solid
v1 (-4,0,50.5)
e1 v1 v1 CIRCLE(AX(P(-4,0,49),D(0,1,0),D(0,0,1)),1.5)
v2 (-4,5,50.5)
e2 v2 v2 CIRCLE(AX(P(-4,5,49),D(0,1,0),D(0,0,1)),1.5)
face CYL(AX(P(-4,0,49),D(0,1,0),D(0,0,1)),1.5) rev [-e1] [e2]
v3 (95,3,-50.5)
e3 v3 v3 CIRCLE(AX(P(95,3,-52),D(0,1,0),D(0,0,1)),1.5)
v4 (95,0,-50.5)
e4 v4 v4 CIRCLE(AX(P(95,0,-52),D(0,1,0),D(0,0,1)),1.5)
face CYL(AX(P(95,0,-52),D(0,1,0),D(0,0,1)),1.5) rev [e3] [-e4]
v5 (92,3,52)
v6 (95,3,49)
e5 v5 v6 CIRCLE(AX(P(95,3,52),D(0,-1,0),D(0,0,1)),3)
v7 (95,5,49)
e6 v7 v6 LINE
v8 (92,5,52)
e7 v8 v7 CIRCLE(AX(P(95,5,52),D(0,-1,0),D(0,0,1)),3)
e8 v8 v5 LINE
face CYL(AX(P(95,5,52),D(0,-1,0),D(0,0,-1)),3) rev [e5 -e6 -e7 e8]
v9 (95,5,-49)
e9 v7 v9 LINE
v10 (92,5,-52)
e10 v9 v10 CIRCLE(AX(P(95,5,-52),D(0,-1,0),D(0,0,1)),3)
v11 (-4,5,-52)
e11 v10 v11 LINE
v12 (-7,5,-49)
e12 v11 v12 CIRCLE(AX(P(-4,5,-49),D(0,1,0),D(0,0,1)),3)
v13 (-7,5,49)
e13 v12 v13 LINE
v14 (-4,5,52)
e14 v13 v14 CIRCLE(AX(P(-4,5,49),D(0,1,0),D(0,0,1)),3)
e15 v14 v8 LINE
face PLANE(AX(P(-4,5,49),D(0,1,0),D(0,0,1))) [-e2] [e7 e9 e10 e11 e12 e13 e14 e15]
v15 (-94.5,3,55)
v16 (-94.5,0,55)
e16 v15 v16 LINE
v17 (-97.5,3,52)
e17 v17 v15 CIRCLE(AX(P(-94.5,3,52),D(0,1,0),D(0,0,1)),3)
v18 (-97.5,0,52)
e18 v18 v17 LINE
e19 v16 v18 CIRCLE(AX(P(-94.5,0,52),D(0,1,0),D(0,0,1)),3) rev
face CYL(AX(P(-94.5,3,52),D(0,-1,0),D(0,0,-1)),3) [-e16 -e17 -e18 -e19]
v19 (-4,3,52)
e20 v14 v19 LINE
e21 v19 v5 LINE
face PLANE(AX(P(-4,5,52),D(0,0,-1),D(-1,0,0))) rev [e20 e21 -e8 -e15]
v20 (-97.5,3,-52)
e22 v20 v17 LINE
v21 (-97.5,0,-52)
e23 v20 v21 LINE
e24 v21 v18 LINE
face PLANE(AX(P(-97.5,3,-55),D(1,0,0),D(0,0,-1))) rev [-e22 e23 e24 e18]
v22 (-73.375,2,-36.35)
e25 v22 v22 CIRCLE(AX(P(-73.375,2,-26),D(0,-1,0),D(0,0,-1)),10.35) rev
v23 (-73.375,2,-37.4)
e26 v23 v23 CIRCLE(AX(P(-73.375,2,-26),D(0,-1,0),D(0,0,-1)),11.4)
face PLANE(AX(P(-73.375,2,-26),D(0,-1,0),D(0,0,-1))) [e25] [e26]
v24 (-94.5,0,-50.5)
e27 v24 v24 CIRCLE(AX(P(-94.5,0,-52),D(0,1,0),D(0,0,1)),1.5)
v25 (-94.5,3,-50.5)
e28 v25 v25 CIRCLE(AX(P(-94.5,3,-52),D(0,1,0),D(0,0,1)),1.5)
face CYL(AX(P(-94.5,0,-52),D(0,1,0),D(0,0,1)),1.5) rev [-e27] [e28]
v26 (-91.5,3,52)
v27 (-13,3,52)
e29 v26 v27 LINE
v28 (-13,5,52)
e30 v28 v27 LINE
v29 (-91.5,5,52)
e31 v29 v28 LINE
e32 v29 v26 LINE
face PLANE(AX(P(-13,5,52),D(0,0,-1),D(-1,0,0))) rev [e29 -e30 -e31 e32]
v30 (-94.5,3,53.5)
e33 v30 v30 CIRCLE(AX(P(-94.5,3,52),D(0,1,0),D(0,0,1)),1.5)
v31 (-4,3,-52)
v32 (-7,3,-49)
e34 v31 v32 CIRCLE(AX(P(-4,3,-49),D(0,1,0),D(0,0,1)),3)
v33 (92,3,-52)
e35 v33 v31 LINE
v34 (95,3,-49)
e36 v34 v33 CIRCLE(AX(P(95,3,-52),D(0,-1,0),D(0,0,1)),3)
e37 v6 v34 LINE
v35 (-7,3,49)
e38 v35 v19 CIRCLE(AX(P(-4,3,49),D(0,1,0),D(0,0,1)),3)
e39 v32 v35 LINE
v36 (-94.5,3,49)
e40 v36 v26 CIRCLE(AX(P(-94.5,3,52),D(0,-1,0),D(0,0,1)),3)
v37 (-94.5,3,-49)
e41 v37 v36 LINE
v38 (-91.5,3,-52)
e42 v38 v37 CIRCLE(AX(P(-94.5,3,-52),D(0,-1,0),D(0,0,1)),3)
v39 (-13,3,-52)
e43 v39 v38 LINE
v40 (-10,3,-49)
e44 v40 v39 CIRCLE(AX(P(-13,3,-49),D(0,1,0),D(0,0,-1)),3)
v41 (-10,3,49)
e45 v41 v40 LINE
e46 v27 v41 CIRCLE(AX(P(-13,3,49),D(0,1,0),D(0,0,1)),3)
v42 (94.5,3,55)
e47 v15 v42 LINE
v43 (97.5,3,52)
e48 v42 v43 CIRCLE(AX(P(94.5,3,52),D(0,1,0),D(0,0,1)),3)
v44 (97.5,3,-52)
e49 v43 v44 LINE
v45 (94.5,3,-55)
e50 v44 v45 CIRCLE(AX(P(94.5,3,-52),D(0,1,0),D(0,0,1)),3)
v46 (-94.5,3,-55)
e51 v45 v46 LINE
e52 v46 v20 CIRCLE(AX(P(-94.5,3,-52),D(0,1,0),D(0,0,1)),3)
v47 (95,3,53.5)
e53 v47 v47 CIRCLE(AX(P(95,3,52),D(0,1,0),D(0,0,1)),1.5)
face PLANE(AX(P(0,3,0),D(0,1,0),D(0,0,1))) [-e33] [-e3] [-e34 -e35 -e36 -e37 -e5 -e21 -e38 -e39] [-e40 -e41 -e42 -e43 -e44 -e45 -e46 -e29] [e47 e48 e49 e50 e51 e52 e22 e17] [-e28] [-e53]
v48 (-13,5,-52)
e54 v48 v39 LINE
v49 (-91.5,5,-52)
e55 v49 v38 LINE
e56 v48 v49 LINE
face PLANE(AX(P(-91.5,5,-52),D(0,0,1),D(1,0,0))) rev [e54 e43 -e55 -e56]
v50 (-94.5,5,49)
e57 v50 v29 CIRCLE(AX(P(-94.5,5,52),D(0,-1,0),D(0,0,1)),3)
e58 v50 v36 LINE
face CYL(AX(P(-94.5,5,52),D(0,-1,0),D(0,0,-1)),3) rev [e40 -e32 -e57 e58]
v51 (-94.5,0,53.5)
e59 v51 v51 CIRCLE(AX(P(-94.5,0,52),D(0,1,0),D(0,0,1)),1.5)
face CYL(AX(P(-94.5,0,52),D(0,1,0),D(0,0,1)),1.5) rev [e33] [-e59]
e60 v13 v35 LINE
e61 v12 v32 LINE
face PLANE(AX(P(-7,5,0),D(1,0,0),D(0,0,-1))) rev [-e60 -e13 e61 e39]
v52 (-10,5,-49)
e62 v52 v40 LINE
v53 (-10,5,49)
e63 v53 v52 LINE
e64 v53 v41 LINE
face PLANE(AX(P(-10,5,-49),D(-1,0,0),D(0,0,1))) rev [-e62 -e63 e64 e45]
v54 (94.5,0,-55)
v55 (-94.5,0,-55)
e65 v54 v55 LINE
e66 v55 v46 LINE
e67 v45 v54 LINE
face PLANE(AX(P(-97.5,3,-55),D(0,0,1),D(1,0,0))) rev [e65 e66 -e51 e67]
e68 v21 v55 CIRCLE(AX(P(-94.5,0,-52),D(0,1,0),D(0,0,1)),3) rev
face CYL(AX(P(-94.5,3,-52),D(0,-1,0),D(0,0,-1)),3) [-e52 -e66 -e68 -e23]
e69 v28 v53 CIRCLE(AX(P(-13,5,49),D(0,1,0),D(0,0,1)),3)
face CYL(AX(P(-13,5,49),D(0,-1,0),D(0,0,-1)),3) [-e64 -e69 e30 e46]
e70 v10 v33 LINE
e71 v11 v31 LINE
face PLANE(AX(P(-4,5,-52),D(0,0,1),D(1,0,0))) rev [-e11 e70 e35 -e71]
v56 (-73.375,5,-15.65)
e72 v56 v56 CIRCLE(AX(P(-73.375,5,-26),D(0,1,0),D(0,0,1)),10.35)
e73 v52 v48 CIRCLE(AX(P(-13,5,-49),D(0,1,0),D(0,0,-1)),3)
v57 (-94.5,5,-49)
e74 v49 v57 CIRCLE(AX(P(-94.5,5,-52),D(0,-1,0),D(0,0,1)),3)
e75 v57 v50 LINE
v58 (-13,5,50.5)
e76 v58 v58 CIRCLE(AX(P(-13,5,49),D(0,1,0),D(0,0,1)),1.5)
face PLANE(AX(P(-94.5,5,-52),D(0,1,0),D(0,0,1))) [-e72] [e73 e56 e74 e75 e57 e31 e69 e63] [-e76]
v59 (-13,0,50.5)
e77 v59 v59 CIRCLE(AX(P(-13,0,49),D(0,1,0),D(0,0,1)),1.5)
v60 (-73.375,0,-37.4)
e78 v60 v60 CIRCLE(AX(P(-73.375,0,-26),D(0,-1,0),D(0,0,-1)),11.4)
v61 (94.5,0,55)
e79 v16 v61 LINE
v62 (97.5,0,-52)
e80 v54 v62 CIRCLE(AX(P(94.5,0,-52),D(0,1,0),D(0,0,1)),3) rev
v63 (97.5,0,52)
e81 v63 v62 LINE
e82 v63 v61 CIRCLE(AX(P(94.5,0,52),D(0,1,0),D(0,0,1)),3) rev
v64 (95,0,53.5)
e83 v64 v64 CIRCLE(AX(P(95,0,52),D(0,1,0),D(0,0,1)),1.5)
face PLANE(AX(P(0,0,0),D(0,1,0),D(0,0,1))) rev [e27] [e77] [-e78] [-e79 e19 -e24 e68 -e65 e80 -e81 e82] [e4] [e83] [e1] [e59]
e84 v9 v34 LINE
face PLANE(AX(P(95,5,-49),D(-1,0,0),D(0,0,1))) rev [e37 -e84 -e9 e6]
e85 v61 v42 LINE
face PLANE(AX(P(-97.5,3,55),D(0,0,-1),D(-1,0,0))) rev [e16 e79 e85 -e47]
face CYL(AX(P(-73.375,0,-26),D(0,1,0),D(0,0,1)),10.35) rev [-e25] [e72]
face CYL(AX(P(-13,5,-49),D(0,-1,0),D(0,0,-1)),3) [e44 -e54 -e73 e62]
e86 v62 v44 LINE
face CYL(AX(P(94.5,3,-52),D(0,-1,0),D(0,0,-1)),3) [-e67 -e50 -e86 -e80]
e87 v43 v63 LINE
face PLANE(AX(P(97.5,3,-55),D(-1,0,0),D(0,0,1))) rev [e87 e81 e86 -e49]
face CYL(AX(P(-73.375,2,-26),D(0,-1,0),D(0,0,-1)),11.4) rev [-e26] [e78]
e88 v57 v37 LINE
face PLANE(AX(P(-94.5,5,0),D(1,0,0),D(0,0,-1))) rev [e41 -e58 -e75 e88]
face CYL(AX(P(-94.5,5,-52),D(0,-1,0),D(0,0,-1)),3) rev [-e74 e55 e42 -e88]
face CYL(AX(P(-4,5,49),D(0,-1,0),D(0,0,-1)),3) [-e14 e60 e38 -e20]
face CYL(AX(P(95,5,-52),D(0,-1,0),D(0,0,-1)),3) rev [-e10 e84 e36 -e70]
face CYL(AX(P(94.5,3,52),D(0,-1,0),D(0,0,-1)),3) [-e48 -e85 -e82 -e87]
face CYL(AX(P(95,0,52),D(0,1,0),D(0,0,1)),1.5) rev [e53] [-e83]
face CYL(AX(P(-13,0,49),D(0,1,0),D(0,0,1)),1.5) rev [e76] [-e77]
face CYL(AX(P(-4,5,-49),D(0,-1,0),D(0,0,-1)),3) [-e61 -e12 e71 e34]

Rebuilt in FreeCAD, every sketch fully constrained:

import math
import FreeCAD as App
import Part
import Sketcher

V = App.Vector
Q = App.Units.Quantity


def edges_at(feature, points):
    """Names of the edges that pass closest to the given points."""
    edges = feature.Shape.Edges
    near = lambda p: min(range(len(edges)), key=lambda i: edges[i].distToShape(Part.Vertex(*p))[0])
    return sorted({f"Edge{near(p) + 1}" for p in points})


def add_polygon(sketch, points):
    """Adds a closed chain of lines whose ends are joined by coincident constraints."""
    first, n = sketch.GeometryCount, len(points)
    for a, b in zip(points, points[1:] + points[:1]):
        sketch.addGeometry(Part.LineSegment(App.Vector(*a, 0), App.Vector(*b, 0)), False)
    for i in range(n):
        sketch.addConstraint(Sketcher.Constraint("Coincident", first + i, 2, first + (i + 1) % n, 1))

doc = App.newDocument("Part")
body = doc.addObject("PartDesign::Body", "Body")

# Sketch on XZ plane
sketch1 = doc.addObject("Sketcher::SketchObject", "Sketch")
body.addObject(sketch1)
sketch1.AttachmentSupport = (doc.XZ_Plane, [""])
sketch1.MapMode = "FlatFace"
add_polygon(sketch1, [(-98, -55), (-98, 55), (98, 55), (98, -55)])  # lines 0-3
sketch1.addConstraint(Sketcher.Constraint("Vertical", 0))
sketch1.addConstraint(Sketcher.Constraint("Horizontal", 1))
sketch1.addConstraint(Sketcher.Constraint("Vertical", 2))
sketch1.addConstraint(Sketcher.Constraint("Horizontal", 3))
sketch1.addConstraint(Sketcher.Constraint("Symmetric", 0, 2, 2, 2, -1, 1))
sketch1.addConstraint(Sketcher.Constraint("DistanceX", 1, 1, 1, 2, Q("195 mm")))
sketch1.addConstraint(Sketcher.Constraint("DistanceY", 0, 1, 0, 2, Q("110 mm")))
pad1 = doc.addObject("PartDesign::Pad", "Pad")
body.addObject(pad1)
pad1.Profile = sketch1
pad1.Length = 3
pad1.Reversed = True

# Sketch on XZ plane
sketch2 = doc.addObject("Sketcher::SketchObject", "Sketch001")
body.addObject(sketch2)
sketch2.AttachmentSupport = (doc.XZ_Plane, [""])
sketch2.MapMode = "FlatFace"
sketch2.AttachmentOffset = App.Placement(V(0, 0, -3), App.Rotation())
sketch2.addGeometry(Part.ArcOfCircle(Part.Circle(V(-94.5, -52, 0), V(0, 0, 1), 3), math.radians(0), math.radians(90)), False)
sketch2.addGeometry(Part.LineSegment(V(-94.5, -49, 0), V(-94.5, 49, 0)), False)
sketch2.addGeometry(Part.ArcOfCircle(Part.Circle(V(-94.5, 52, 0), V(0, 0, 1), 3), math.radians(-90), math.radians(0)), False)
sketch2.addGeometry(Part.LineSegment(V(-91.5, 52, 0), V(-13, 52, 0)), False)
sketch2.addGeometry(Part.ArcOfCircle(Part.Circle(V(-13, 49, 0), V(0, 0, 1), 3), math.radians(0), math.radians(90)), False)
sketch2.addGeometry(Part.LineSegment(V(-10, 49, 0), V(-10, -49, 0)), False)
sketch2.addGeometry(Part.ArcOfCircle(Part.Circle(V(-13, -49, 0), V(0, 0, 1), 3), math.radians(-90), math.radians(0)), False)
sketch2.addGeometry(Part.LineSegment(V(-13, -52, 0), V(-91.5, -52, 0)), False)
sketch2.addGeometry(Part.ArcOfCircle(Part.Circle(V(-4, -49, 0), V(0, 0, 1), 3), math.radians(180), math.radians(270)), False)
sketch2.addGeometry(Part.LineSegment(V(-7, -49, 0), V(-7, 49, 0)), False)
sketch2.addGeometry(Part.ArcOfCircle(Part.Circle(V(-4, 49, 0), V(0, 0, 1), 3), math.radians(90), math.radians(180)), False)
sketch2.addGeometry(Part.LineSegment(V(-4, 52, 0), V(92, 52, 0)), False)
sketch2.addGeometry(Part.ArcOfCircle(Part.Circle(V(95, 52, 0), V(0, 0, 1), 3), math.radians(180), math.radians(270)), False)
sketch2.addGeometry(Part.LineSegment(V(95, 49, 0), V(95, -49, 0)), False)
sketch2.addGeometry(Part.ArcOfCircle(Part.Circle(V(95, -52, 0), V(0, 0, 1), 3), math.radians(90), math.radians(180)), False)
sketch2.addGeometry(Part.LineSegment(V(92, -52, 0), V(-4, -52, 0)), False)
sketch2.addConstraint(Sketcher.Constraint("Coincident", 0, 2, 1, 1))
sketch2.addConstraint(Sketcher.Constraint("Coincident", 1, 2, 2, 1))
sketch2.addConstraint(Sketcher.Constraint("Coincident", 2, 2, 3, 1))
sketch2.addConstraint(Sketcher.Constraint("Tangent", 3, 2, 4, 2))
sketch2.addConstraint(Sketcher.Constraint("Tangent", 4, 1, 5, 1))
sketch2.addConstraint(Sketcher.Constraint("Tangent", 5, 2, 6, 2))
sketch2.addConstraint(Sketcher.Constraint("Tangent", 6, 1, 7, 1))
sketch2.addConstraint(Sketcher.Constraint("Coincident", 7, 2, 0, 1))
sketch2.addConstraint(Sketcher.Constraint("Tangent", 8, 1, 9, 1))
sketch2.addConstraint(Sketcher.Constraint("Tangent", 9, 2, 10, 2))
sketch2.addConstraint(Sketcher.Constraint("Tangent", 10, 1, 11, 1))
sketch2.addConstraint(Sketcher.Constraint("Coincident", 11, 2, 12, 1))
sketch2.addConstraint(Sketcher.Constraint("Coincident", 12, 2, 13, 1))
sketch2.addConstraint(Sketcher.Constraint("Coincident", 13, 2, 14, 1))
sketch2.addConstraint(Sketcher.Constraint("Coincident", 14, 2, 15, 1))
sketch2.addConstraint(Sketcher.Constraint("Tangent", 15, 2, 8, 2))
sketch2.addConstraint(Sketcher.Constraint("Vertical", 1))
sketch2.addConstraint(Sketcher.Constraint("Horizontal", 3))
sketch2.addConstraint(Sketcher.Constraint("Vertical", 5))
sketch2.addConstraint(Sketcher.Constraint("Horizontal", 7))
sketch2.addConstraint(Sketcher.Constraint("Vertical", 9))
sketch2.addConstraint(Sketcher.Constraint("Horizontal", 11))
sketch2.addConstraint(Sketcher.Constraint("Vertical", 13))
sketch2.addConstraint(Sketcher.Constraint("Horizontal", 15))
sketch2.addConstraint(Sketcher.Constraint("Equal", 0, 2))
sketch2.addConstraint(Sketcher.Constraint("Equal", 2, 4))
sketch2.addConstraint(Sketcher.Constraint("Equal", 4, 6))
sketch2.addConstraint(Sketcher.Constraint("Equal", 6, 8))
sketch2.addConstraint(Sketcher.Constraint("Equal", 8, 10))
sketch2.addConstraint(Sketcher.Constraint("Equal", 10, 12))
sketch2.addConstraint(Sketcher.Constraint("Equal", 12, 14))
sketch2.addConstraint(Sketcher.Constraint("Symmetric", 0, 3, 2, 3, -1))
sketch2.addConstraint(Sketcher.Constraint("Symmetric", 12, 3, 14, 3, -1))
sketch2.addConstraint(Sketcher.Constraint("Horizontal", 6, 3, 8, 3))
sketch2.addConstraint(Sketcher.Constraint("Horizontal", 4, 3, 10, 3))
sketch2.addConstraint(Sketcher.Constraint("Horizontal", 2, 3, 12, 3))
sketch2.addConstraint(Sketcher.Constraint("Horizontal", 8, 3, 0, 2))
sketch2.addConstraint(Sketcher.Constraint("Horizontal", 10, 3, 1, 2))
sketch2.addConstraint(Sketcher.Constraint("Vertical", 2, 3, 0, 2))
sketch2.addConstraint(Sketcher.Constraint("Vertical", 14, 3, 12, 2))
sketch2.addConstraint(Sketcher.Constraint("Radius", 0, Q("3 mm")))
sketch2.addConstraint(Sketcher.Constraint("DistanceX", 11, 1, 11, 2, Q("96 mm")))
sketch2.addConstraint(Sketcher.Constraint("DistanceY", 1, 1, 1, 2, Q("98 mm")))
sketch2.addConstraint(Sketcher.Constraint("DistanceX", 3, 1, 3, 2, Q("78.5 mm")))
sketch2.addConstraint(Sketcher.Constraint("DistanceX", 4, 3, -1, 1, Q("13 mm")))
sketch2.addConstraint(Sketcher.Constraint("DistanceX", 8, 3, -1, 1, Q("4 mm")))
pad2 = doc.addObject("PartDesign::Pad", "Pad001")
body.addObject(pad2)
pad2.Profile = sketch2
pad2.Length = 2
pad2.Reversed = True

# Sketch on XZ plane
sketch3 = doc.addObject("Sketcher::SketchObject", "Sketch002")
body.addObject(sketch3)
sketch3.AttachmentSupport = (doc.XZ_Plane, [""])
sketch3.MapMode = "FlatFace"
sketch3.AttachmentOffset = App.Placement(V(0, 0, -3), App.Rotation())
sketch3.addGeometry(Part.Circle(V(-94.5, -52, 0), V(0, 0, 1), 1.5), False)
sketch3.addGeometry(Part.Circle(V(95, -52, 0), V(0, 0, 1), 1.5), False)
sketch3.addGeometry(Part.Circle(V(95, 52, 0), V(0, 0, 1), 1.5), False)
sketch3.addGeometry(Part.Circle(V(-94.5, 52, 0), V(0, 0, 1), 1.5), False)
sketch3.addConstraint(Sketcher.Constraint("Equal", 0, 1))
sketch3.addConstraint(Sketcher.Constraint("Equal", 1, 2))
sketch3.addConstraint(Sketcher.Constraint("Equal", 2, 3))
sketch3.addConstraint(Sketcher.Constraint("Symmetric", 1, 3, 2, 3, -1))
sketch3.addConstraint(Sketcher.Constraint("Symmetric", 0, 3, 3, 3, -1))
sketch3.addConstraint(Sketcher.Constraint("Horizontal", 0, 3, 1, 3))
sketch3.addConstraint(Sketcher.Constraint("Diameter", 0, Q("3 mm")))
sketch3.addConstraint(Sketcher.Constraint("DistanceY", 0, 3, -1, 1, Q("52 mm")))
sketch3.addConstraint(Sketcher.Constraint("DistanceX", -1, 1, 1, 3, Q("95 mm")))
sketch3.addConstraint(Sketcher.Constraint("DistanceX", 0, 3, -1, 1, Q("94.5 mm")))
pocket1 = doc.addObject("PartDesign::Pocket", "Pocket")
body.addObject(pocket1)
pocket1.Profile = sketch3
pocket1.Type = "ThroughAll"
pocket1.Reversed = True
doc.recompute()

fillet = doc.addObject("PartDesign::Fillet", "Fillet")
body.addObject(fillet)
fillet.Base = (pocket1, edges_at(pocket1, [
    (97.5, 1.5, 55),
    (-97.5, 1.5, 55),
    (-97.5, 1.5, -55),
    (97.5, 1.5, -55),
]))
fillet.Radius = 3

# Sketch on XZ plane
sketch4 = doc.addObject("Sketcher::SketchObject", "Sketch003")
body.addObject(sketch4)
sketch4.AttachmentSupport = (doc.XZ_Plane, [""])
sketch4.MapMode = "FlatFace"
sketch4.AttachmentOffset = App.Placement(V(0, 0, -5), App.Rotation())
sketch4.addGeometry(Part.Circle(V(-13, 49, 0), V(0, 0, 1), 1.5), False)
sketch4.addGeometry(Part.Circle(V(-4, 49, 0), V(0, 0, 1), 1.5), False)
sketch4.addConstraint(Sketcher.Constraint("Equal", 0, 1))
sketch4.addConstraint(Sketcher.Constraint("Horizontal", 0, 3, 1, 3))
sketch4.addConstraint(Sketcher.Constraint("Diameter", 0, Q("3 mm")))
sketch4.addConstraint(Sketcher.Constraint("DistanceX", 0, 3, -1, 1, Q("13 mm")))
sketch4.addConstraint(Sketcher.Constraint("DistanceY", -1, 1, 0, 3, Q("49 mm")))
sketch4.addConstraint(Sketcher.Constraint("DistanceX", 1, 3, -1, 1, Q("4 mm")))
pocket2 = doc.addObject("PartDesign::Pocket", "Pocket001")
body.addObject(pocket2)
pocket2.Profile = sketch4
pocket2.Type = "ThroughAll"
pocket2.Reversed = True

# Sketch on XZ plane
sketch5 = doc.addObject("Sketcher::SketchObject", "Sketch004")
body.addObject(sketch5)
sketch5.AttachmentSupport = (doc.XZ_Plane, [""])
sketch5.MapMode = "FlatFace"
sketch5.AttachmentOffset = App.Placement(V(0, 0, -5), App.Rotation())
sketch5.addGeometry(Part.Circle(V(-73, -26, 0), V(0, 0, 1), 10), False)
sketch5.addConstraint(Sketcher.Constraint("Diameter", 0, Q("20.7 mm")))
sketch5.addConstraint(Sketcher.Constraint("DistanceY", 0, 3, -1, 1, Q("26 mm")))
sketch5.addConstraint(Sketcher.Constraint("DistanceX", 0, 3, -1, 1, Q("73.375 mm")))
pocket3 = doc.addObject("PartDesign::Pocket", "Pocket002")
body.addObject(pocket3)
pocket3.Profile = sketch5
pocket3.Type = "ThroughAll"
pocket3.Reversed = True

# Sketch on XZ plane
sketch6 = doc.addObject("Sketcher::SketchObject", "Sketch005")
body.addObject(sketch6)
sketch6.AttachmentSupport = (doc.XZ_Plane, [""])
sketch6.MapMode = "FlatFace"
sketch6.addGeometry(Part.Circle(V(-73, -26, 0), V(0, 0, 1), 11), False)
sketch6.addConstraint(Sketcher.Constraint("Diameter", 0, Q("22.8 mm")))
sketch6.addConstraint(Sketcher.Constraint("DistanceY", 0, 3, -1, 1, Q("26 mm")))
sketch6.addConstraint(Sketcher.Constraint("DistanceX", 0, 3, -1, 1, Q("73.375 mm")))
pocket4 = doc.addObject("PartDesign::Pocket", "Pocket003")
body.addObject(pocket4)
pocket4.Profile = sketch6
pocket4.Length = 2

doc.recompute()
